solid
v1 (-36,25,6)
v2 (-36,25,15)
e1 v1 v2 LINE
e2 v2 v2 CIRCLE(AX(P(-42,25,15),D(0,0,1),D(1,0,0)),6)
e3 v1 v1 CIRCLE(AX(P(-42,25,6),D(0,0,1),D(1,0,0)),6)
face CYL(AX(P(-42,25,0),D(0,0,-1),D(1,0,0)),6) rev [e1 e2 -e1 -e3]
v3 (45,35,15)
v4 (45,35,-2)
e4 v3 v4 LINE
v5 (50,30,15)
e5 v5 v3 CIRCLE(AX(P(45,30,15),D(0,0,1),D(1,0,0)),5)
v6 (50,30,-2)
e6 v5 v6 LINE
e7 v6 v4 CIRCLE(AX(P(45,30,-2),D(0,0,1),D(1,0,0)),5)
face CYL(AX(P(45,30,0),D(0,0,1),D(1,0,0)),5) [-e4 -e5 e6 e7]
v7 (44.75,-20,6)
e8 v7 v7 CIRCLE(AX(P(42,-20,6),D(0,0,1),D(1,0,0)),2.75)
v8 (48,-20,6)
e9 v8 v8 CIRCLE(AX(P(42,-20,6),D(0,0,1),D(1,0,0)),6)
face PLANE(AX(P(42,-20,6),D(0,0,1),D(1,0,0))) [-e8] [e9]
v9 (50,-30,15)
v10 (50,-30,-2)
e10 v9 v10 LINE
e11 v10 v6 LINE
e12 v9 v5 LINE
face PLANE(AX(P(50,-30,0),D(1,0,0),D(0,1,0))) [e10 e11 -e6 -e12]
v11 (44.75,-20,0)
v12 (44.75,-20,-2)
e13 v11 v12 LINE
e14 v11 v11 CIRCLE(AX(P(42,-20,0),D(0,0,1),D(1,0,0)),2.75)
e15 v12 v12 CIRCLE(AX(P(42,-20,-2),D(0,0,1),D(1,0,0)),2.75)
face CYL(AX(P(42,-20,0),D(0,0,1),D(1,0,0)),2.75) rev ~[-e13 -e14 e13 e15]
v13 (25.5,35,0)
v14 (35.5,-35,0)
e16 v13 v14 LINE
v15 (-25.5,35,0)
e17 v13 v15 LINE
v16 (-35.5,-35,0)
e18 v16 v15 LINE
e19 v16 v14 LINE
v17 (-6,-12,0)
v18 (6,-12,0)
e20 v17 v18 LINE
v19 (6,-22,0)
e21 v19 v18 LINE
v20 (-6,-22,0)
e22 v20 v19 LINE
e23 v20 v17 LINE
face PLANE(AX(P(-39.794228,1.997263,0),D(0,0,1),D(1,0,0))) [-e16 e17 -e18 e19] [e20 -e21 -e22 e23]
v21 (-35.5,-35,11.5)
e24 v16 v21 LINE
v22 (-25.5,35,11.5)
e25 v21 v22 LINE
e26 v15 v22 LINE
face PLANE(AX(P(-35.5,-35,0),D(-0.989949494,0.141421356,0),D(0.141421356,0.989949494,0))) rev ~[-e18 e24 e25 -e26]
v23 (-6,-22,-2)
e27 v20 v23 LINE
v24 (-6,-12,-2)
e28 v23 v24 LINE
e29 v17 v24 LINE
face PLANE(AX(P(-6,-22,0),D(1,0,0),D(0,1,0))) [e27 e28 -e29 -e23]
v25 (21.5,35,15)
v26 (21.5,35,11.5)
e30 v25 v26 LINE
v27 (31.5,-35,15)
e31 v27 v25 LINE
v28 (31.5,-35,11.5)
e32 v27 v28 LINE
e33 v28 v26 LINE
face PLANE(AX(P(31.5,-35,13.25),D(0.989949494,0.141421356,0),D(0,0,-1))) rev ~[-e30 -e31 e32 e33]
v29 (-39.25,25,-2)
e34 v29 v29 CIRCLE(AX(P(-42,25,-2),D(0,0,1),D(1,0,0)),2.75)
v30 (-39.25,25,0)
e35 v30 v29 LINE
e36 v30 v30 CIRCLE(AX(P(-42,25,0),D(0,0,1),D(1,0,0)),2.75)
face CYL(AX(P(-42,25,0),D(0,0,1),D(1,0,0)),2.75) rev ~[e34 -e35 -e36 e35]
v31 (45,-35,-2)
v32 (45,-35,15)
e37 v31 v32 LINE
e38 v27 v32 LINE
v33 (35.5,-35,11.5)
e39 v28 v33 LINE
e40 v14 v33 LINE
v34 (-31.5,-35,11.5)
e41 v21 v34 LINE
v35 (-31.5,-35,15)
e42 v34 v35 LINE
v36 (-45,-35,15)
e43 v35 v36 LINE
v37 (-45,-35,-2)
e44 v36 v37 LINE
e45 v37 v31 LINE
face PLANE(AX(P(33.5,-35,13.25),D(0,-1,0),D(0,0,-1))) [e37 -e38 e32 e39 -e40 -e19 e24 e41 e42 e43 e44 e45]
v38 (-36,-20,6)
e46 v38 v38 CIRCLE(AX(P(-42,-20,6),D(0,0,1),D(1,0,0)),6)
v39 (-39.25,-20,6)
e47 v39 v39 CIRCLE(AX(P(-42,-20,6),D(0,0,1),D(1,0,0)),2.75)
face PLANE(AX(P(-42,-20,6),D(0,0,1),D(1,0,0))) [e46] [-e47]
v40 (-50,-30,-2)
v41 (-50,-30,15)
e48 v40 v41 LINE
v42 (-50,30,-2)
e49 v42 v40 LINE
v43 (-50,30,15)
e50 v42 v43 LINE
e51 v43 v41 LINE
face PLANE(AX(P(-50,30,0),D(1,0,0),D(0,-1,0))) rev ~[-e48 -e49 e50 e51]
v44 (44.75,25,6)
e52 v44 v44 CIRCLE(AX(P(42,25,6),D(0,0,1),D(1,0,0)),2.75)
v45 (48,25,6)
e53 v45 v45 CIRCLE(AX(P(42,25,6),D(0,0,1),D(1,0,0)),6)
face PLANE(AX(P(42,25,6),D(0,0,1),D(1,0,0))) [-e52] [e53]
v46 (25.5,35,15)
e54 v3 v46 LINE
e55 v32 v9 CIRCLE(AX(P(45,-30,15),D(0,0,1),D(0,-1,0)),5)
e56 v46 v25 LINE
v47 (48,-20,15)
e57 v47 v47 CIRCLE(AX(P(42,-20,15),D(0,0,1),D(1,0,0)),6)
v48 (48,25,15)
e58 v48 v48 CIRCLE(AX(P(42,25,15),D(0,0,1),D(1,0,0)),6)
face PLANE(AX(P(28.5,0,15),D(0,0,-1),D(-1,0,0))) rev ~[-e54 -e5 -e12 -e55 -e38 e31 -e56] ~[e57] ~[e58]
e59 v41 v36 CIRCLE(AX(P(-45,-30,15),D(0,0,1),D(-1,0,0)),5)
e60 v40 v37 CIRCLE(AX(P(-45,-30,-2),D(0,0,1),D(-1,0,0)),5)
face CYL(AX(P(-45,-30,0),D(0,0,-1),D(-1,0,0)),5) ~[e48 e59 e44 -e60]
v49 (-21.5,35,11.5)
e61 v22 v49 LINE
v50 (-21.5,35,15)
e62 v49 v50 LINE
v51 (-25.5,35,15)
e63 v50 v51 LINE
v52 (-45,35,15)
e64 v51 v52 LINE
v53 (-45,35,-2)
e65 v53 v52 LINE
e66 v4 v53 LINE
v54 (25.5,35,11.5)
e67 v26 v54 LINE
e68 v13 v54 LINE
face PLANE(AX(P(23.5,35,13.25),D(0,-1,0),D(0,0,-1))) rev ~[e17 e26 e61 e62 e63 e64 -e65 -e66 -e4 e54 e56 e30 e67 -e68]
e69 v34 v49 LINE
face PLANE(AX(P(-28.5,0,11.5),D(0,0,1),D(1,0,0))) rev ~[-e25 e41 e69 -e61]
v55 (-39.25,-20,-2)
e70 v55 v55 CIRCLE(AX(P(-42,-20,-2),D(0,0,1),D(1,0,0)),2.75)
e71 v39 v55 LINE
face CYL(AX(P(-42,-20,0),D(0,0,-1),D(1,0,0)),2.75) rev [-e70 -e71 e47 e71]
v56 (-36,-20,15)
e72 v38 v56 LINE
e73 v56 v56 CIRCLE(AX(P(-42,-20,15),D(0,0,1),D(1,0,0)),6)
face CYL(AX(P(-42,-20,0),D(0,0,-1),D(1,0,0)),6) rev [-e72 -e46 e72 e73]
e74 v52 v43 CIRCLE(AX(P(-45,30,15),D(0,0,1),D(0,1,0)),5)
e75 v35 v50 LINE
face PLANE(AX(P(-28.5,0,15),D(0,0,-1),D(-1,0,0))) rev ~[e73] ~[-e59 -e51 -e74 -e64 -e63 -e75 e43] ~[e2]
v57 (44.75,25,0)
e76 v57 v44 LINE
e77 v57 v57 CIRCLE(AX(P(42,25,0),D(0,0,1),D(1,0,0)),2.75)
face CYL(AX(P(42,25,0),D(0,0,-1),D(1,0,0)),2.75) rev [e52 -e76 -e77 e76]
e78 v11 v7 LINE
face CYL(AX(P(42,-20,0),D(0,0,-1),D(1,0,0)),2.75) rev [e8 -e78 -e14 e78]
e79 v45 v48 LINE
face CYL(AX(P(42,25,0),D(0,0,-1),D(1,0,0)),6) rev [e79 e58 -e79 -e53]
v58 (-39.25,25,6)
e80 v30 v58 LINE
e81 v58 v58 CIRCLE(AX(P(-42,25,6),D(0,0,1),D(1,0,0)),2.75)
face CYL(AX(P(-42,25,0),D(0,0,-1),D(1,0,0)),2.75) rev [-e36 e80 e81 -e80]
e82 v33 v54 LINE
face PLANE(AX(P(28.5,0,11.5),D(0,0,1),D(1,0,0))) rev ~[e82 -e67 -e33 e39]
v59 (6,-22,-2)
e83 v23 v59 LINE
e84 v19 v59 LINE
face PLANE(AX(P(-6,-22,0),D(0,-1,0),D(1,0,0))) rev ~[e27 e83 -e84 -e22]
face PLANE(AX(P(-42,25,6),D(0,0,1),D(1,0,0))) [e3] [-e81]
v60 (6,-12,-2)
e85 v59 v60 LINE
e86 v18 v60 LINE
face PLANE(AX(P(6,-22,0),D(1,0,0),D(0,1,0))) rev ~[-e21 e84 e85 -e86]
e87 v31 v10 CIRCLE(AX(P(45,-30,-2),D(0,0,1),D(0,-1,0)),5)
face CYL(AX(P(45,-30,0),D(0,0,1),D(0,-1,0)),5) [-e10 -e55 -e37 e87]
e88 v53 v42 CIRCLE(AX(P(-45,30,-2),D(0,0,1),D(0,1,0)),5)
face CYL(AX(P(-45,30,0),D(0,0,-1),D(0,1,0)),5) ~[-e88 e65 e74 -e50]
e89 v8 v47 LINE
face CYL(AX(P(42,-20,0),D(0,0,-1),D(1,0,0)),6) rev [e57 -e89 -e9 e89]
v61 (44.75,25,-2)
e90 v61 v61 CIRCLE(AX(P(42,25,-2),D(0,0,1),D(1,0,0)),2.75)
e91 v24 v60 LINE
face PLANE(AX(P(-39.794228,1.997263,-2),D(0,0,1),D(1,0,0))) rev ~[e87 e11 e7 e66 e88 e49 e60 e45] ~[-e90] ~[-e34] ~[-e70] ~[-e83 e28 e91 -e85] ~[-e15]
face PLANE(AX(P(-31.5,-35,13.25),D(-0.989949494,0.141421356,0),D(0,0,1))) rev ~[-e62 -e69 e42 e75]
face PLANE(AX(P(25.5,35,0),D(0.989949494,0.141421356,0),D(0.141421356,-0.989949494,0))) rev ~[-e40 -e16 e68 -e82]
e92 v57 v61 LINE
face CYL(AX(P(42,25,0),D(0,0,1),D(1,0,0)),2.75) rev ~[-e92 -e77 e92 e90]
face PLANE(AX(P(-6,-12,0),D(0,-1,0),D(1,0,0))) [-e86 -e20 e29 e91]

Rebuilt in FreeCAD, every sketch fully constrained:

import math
import FreeCAD as App
import Part
import Sketcher
from FreeCAD import Vector
Q = App.Units.Quantity

doc = App.newDocument("Part")
params = doc.addObject("Spreadsheet::Sheet", "Params")
for row, (alias, value) in enumerate([
    ("sketch1_radius", "5 mm"),
    ("sketch1_diameter", "5.5 mm"),
    ("sketch1_width", "90 mm"),
    ("sketch1_width2", "12 mm"),
    ("sketch1_height", "60 mm"),
    ("pad1_length", "2 mm"),
    ("sketch2_diameter", "12 mm"),
    ("sketch2_radius", "5 mm"),
    ("sketch2_height", "60 mm"),
    ("sketch2_width", "19.5 mm"),
    ("sketch2_width2", "9.5 mm"),
    ("pad2_length", "15 mm"),
    ("sketch3_width", "4 mm"),
    ("sketch3_height", "3.5 mm"),
    ("sketch5_width", "4 mm"),
    ("sketch5_height", "3.5 mm"),
    ("sketch7_diameter", "12 mm"),
    ("sketch7_diameter2", "5.5 mm"),
    ("pad3_length", "6 mm"),
], start=1):
    params.set(f"A{row}", alias)
    params.set(f"B{row}", "=" + value)
    params.setAlias(f"B{row}", alias)

body = doc.addObject("PartDesign::Body", "Body")

# Sketch on XY plane
sketch1 = doc.addObject("Sketcher::SketchObject", "Sketch")
body.addObject(sketch1)
sketch1.AttachmentSupport = (doc.XY_Plane, [""])
sketch1.MapMode = "FlatFace"
sketch1.addGeometry([
    Part.ArcOfCircle(Part.Circle(Vector(-45, 30, 0), Vector(0, 0, 1), 5), math.radians(90), math.radians(180)),  # 0
    Part.LineSegment(Vector(-50, 30, 0), Vector(-50, -30, 0)),  # 1
    Part.ArcOfCircle(Part.Circle(Vector(-45, -30, 0), Vector(0, 0, 1), 5), math.radians(180), math.radians(270)),  # 2
    Part.LineSegment(Vector(-45, -35, 0), Vector(45, -35, 0)),  # 3
    Part.ArcOfCircle(Part.Circle(Vector(45, -30, 0), Vector(0, 0, 1), 5), math.radians(-90), math.radians(0)),  # 4
    Part.LineSegment(Vector(50, -30, 0), Vector(50, 30, 0)),  # 5
    Part.ArcOfCircle(Part.Circle(Vector(45, 30, 0), Vector(0, 0, 1), 5), math.radians(0), math.radians(90)),  # 6
    Part.LineSegment(Vector(45, 35, 0), Vector(-45, 35, 0)),  # 7
    Part.Circle(Vector(-42, -20, 0), Vector(0, 0, 1), 2.8),  # 8
    Part.LineSegment(Vector(6, -22, 0), Vector(-6, -22, 0)),  # 9
    Part.LineSegment(Vector(-6, -22, 0), Vector(-6, -12, 0)),  # 10
    Part.LineSegment(Vector(-6, -12, 0), Vector(6, -12, 0)),  # 11
    Part.LineSegment(Vector(6, -12, 0), Vector(6, -22, 0)),  # 12
    Part.Circle(Vector(42, -20, 0), Vector(0, 0, 1), 2.8),  # 13
    Part.Circle(Vector(-42, 25, 0), Vector(0, 0, 1), 2.8),  # 14
    Part.Circle(Vector(42, 25, 0), Vector(0, 0, 1), 2.8),  # 15
], False)
sketch1.addConstraint([
    Sketcher.Constraint("Tangent", 0, 2, 1, 1),
    Sketcher.Constraint("Tangent", 1, 2, 2, 1),
    Sketcher.Constraint("Tangent", 2, 2, 3, 1),
    Sketcher.Constraint("Tangent", 3, 2, 4, 1),
    Sketcher.Constraint("Tangent", 4, 2, 5, 1),
    Sketcher.Constraint("Tangent", 5, 2, 6, 1),
    Sketcher.Constraint("Tangent", 6, 2, 7, 1),
    Sketcher.Constraint("Tangent", 7, 2, 0, 1),
    Sketcher.Constraint("Coincident", 9, 2, 10, 1),
    Sketcher.Constraint("Coincident", 10, 2, 11, 1),
    Sketcher.Constraint("Coincident", 11, 2, 12, 1),
    Sketcher.Constraint("Coincident", 12, 2, 9, 1),
    Sketcher.Constraint("Vertical", 1),
    Sketcher.Constraint("Horizontal", 3),
    Sketcher.Constraint("Vertical", 5),
    Sketcher.Constraint("Horizontal", 7),
    Sketcher.Constraint("Horizontal", 9),
    Sketcher.Constraint("Vertical", 10),
    Sketcher.Constraint("Horizontal", 11),
    Sketcher.Constraint("Vertical", 12),
    Sketcher.Constraint("Equal", 0, 2),
    Sketcher.Constraint("Equal", 2, 4),
    Sketcher.Constraint("Equal", 4, 6),
    Sketcher.Constraint("Equal", 8, 13),
    Sketcher.Constraint("Equal", 13, 14),
    Sketcher.Constraint("Equal", 14, 15),
    Sketcher.Constraint("Symmetric", 0, 3, 4, 3, -1, 1),
    Sketcher.Constraint("Symmetric", 8, 3, 13, 3, -2),
    Sketcher.Constraint("Symmetric", 14, 3, 15, 3, -2),
    Sketcher.Constraint("Vertical", 8, 3, 14, 3),
    Sketcher.Constraint("Radius", 0, Q("5 mm")),
    Sketcher.Constraint("Diameter", 8, Q("5.5 mm")),
    Sketcher.Constraint("DistanceX", 3, 1, 3, 2, Q("90 mm")),
    Sketcher.Constraint("DistanceX", 9, 2, 9, 1, Q("12 mm")),
    Sketcher.Constraint("DistanceY", 1, 2, 1, 1, Q("60 mm")),
    Sketcher.Constraint("DistanceY", 10, 1, 10, 2, Q("10 mm")),
    Sketcher.Constraint("DistanceX", 8, 3, -1, 1, Q("42 mm")),
    Sketcher.Constraint("DistanceY", 8, 3, -1, 1, Q("20 mm")),
    Sketcher.Constraint("DistanceY", -1, 1, 14, 3, Q("25 mm")),
    Sketcher.Constraint("DistanceX", 9, 2, -1, 1, Q("6 mm")),
    Sketcher.Constraint("DistanceY", 9, 2, -1, 1, Q("22 mm")),
])
sketch1.setExpression("Constraints[30]", "Params.sketch1_radius")
sketch1.setExpression("Constraints[31]", "Params.sketch1_diameter")
sketch1.setExpression("Constraints[32]", "Params.sketch1_width")
sketch1.setExpression("Constraints[33]", "Params.sketch1_width2")
sketch1.setExpression("Constraints[34]", "Params.sketch1_height")
pad1 = doc.addObject("PartDesign::Pad", "Pad")
body.addObject(pad1)
pad1.Profile = sketch1
pad1.setExpression("Length", "Params.pad1_length")
pad1.Reversed = True

# Sketch on XY plane
sketch2 = doc.addObject("Sketcher::SketchObject", "Sketch001")
body.addObject(sketch2)
sketch2.AttachmentSupport = (doc.XY_Plane, [""])
sketch2.MapMode = "FlatFace"
sketch2.addGeometry([
    Part.LineSegment(Vector(-26, 35, 0), Vector(-45, 35, 0)),  # 0
    Part.ArcOfCircle(Part.Circle(Vector(-45, 30, 0), Vector(0, 0, 1), 5), math.radians(90), math.radians(180)),  # 1
    Part.LineSegment(Vector(-50, 30, 0), Vector(-50, -30, 0)),  # 2
    Part.ArcOfCircle(Part.Circle(Vector(-45, -30, 0), Vector(0, 0, 1), 5), math.radians(180), math.radians(270)),  # 3
    Part.LineSegment(Vector(-45, -35, 0), Vector(-36, -35, 0)),  # 4
    Part.LineSegment(Vector(-36, -35, 0), Vector(-26, 35, 0)),  # 5
    Part.Circle(Vector(-42, -20, 0), Vector(0, 0, 1), 6),  # 6
    Part.Circle(Vector(-42, 25, 0), Vector(0, 0, 1), 6),  # 7
    Part.LineSegment(Vector(45, 35, 0), Vector(26, 35, 0)),  # 8
    Part.LineSegment(Vector(26, 35, 0), Vector(36, -35, 0)),  # 9
    Part.LineSegment(Vector(36, -35, 0), Vector(45, -35, 0)),  # 10
    Part.ArcOfCircle(Part.Circle(Vector(45, -30, 0), Vector(0, 0, 1), 5), math.radians(-90), math.radians(0)),  # 11
    Part.LineSegment(Vector(50, -30, 0), Vector(50, 30, 0)),  # 12
    Part.ArcOfCircle(Part.Circle(Vector(45, 30, 0), Vector(0, 0, 1), 5), math.radians(0), math.radians(90)),  # 13
    Part.Circle(Vector(42, -20, 0), Vector(0, 0, 1), 6),  # 14
    Part.Circle(Vector(42, 25, 0), Vector(0, 0, 1), 6),  # 15
], False)
sketch2.addConstraint([
    Sketcher.Constraint("Tangent", 0, 2, 1, 1),
    Sketcher.Constraint("Tangent", 1, 2, 2, 1),
    Sketcher.Constraint("Tangent", 2, 2, 3, 1),
    Sketcher.Constraint("Tangent", 3, 2, 4, 1),
    Sketcher.Constraint("Coincident", 4, 2, 5, 1),
    Sketcher.Constraint("Coincident", 5, 2, 0, 1),
    Sketcher.Constraint("Coincident", 8, 2, 9, 1),
    Sketcher.Constraint("Coincident", 9, 2, 10, 1),
    Sketcher.Constraint("Tangent", 10, 2, 11, 1),
    Sketcher.Constraint("Tangent", 11, 2, 12, 1),
    Sketcher.Constraint("Tangent", 12, 2, 13, 1),
    Sketcher.Constraint("Tangent", 13, 2, 8, 1),
    Sketcher.Constraint("Horizontal", 0),
    Sketcher.Constraint("Vertical", 2),
    Sketcher.Constraint("Horizontal", 4),
    Sketcher.Constraint("Horizontal", 8),
    Sketcher.Constraint("Horizontal", 10),
    Sketcher.Constraint("Vertical", 12),
    Sketcher.Constraint("Equal", 1, 3),
    Sketcher.Constraint("Equal", 6, 7),
    Sketcher.Constraint("Equal", 3, 11),
    Sketcher.Constraint("Equal", 11, 13),
    Sketcher.Constraint("Equal", 7, 14),
    Sketcher.Constraint("Equal", 14, 15),
    Sketcher.Constraint("Symmetric", 1, 3, 11, 3, -1, 1),
    Sketcher.Constraint("Symmetric", 6, 3, 14, 3, -2),
    Sketcher.Constraint("Symmetric", 7, 3, 15, 3, -2),
    Sketcher.Constraint("Symmetric", 5, 2, 8, 2, -2),
    Sketcher.Constraint("Symmetric", 4, 2, 9, 2, -2),
    Sketcher.Constraint("Vertical", 6, 3, 7, 3),
    Sketcher.Constraint("Diameter", 6, Q("12 mm")),
    Sketcher.Constraint("Radius", 1, Q("5 mm")),
    Sketcher.Constraint("DistanceY", 2, 2, 2, 1, Q("60 mm")),
    Sketcher.Constraint("DistanceX", 0, 2, 0, 1, Q("19.5 mm")),
    Sketcher.Constraint("DistanceX", 4, 1, 4, 2, Q("9.5 mm")),
    Sketcher.Constraint("DistanceX", 1, 3, -1, 1, Q("45 mm")),
    Sketcher.Constraint("DistanceX", 6, 3, -1, 1, Q("42 mm")),
    Sketcher.Constraint("DistanceY", 6, 3, -1, 1, Q("20 mm")),
    Sketcher.Constraint("DistanceY", -1, 1, 7, 3, Q("25 mm")),
])
sketch2.setExpression("Constraints[30]", "Params.sketch2_diameter")
sketch2.setExpression("Constraints[31]", "Params.sketch2_radius")
sketch2.setExpression("Constraints[32]", "Params.sketch2_height")
sketch2.setExpression("Constraints[33]", "Params.sketch2_width")
sketch2.setExpression("Constraints[34]", "Params.sketch2_width2")
pad2 = doc.addObject("PartDesign::Pad", "Pad001")
body.addObject(pad2)
pad2.Profile = sketch2
pad2.setExpression("Length", "Params.pad2_length")

# Sketch on XZ plane
sketch3 = doc.addObject("Sketcher::SketchObject", "Sketch002")
body.addObject(sketch3)
sketch3.AttachmentSupport = (doc.XZ_Plane, [""])
sketch3.MapMode = "FlatFace"
sketch3.AttachmentOffset = App.Placement(Vector(0, 0, 35), App.Rotation())
sketch3.addGeometry([
    Part.LineSegment(Vector(-35.5, 15, 0), Vector(-35.5, 11.5, 0)),
    Part.LineSegment(Vector(-35.5, 11.5, 0), Vector(-31.5, 11.5, 0)),
    Part.LineSegment(Vector(-31.5, 11.5, 0), Vector(-31.5, 15, 0)),
    Part.LineSegment(Vector(-31.5, 15, 0), Vector(-35.5, 15, 0)),
], False)
sketch3.addConstraint([
    Sketcher.Constraint("Coincident", 0, 2, 1, 1),
    Sketcher.Constraint("Coincident", 1, 2, 2, 1),
    Sketcher.Constraint("Coincident", 2, 2, 3, 1),
    Sketcher.Constraint("Coincident", 3, 2, 0, 1),
    Sketcher.Constraint("Vertical", 0),
    Sketcher.Constraint("Horizontal", 1),
    Sketcher.Constraint("Vertical", 2),
    Sketcher.Constraint("Horizontal", 3),
    Sketcher.Constraint("DistanceX", 1, 1, 1, 2, Q("4 mm")),
    Sketcher.Constraint("DistanceY", 0, 2, 0, 1, Q("3.5 mm")),
    Sketcher.Constraint("DistanceY", -1, 1, 2, 2, Q("15 mm")),
    Sketcher.Constraint("DistanceX", 0, 2, -1, 1, Q("35.5 mm")),
])
sketch3.setExpression("Constraints[8]", "Params.sketch3_width")
sketch3.setExpression("Constraints[9]", "Params.sketch3_height")

# Sketch on an angled plane
sketch4 = doc.addObject("Sketcher::SketchObject", "Sketch003")
body.addObject(sketch4)
sketch4.Placement = App.Placement(Vector(-29.89, 4.27, 0), App.Rotation(Vector(0.141421356, 0.989949494, 0), Vector(0, 0, 1.000000001), Vector(0.989949494, -0.141421356, 0), "ZXY"))
sketch4.addGeometry(Part.LineSegment(Vector(-40, 15, 0), Vector(31, 15, 0)), False)
sketch4.addConstraint([
    Sketcher.Constraint("Horizontal", 0),
    Sketcher.Constraint("DistanceY", -1, 1, 0, 1, Q("15 mm")),
    Sketcher.Constraint("DistanceX", 0, 1, 0, 2, Q("70.710678 mm")),
    Sketcher.Constraint("DistanceX", 0, 1, -1, 1, Q("39.66869 mm")),
])
doc.recompute()

additivepipe = doc.addObject("PartDesign::AdditivePipe", "AdditivePipe")
body.addObject(additivepipe)
additivepipe.Profile = sketch3
additivepipe.Spine = (sketch4, ["Edge1"])

# Sketch on XZ plane
sketch5 = doc.addObject("Sketcher::SketchObject", "Sketch004")
body.addObject(sketch5)
sketch5.AttachmentSupport = (doc.XZ_Plane, [""])
sketch5.MapMode = "FlatFace"
sketch5.AttachmentOffset = App.Placement(Vector(0, 0, 35), App.Rotation())
sketch5.addGeometry([
    Part.LineSegment(Vector(31.5, 15, 0), Vector(31.5, 11.5, 0)),
    Part.LineSegment(Vector(31.5, 11.5, 0), Vector(35.5, 11.5, 0)),
    Part.LineSegment(Vector(35.5, 11.5, 0), Vector(35.5, 15, 0)),
    Part.LineSegment(Vector(35.5, 15, 0), Vector(31.5, 15, 0)),
], False)
sketch5.addConstraint([
    Sketcher.Constraint("Coincident", 0, 2, 1, 1),
    Sketcher.Constraint("Coincident", 1, 2, 2, 1),
    Sketcher.Constraint("Coincident", 2, 2, 3, 1),
    Sketcher.Constraint("Coincident", 3, 2, 0, 1),
    Sketcher.Constraint("Vertical", 0),
    Sketcher.Constraint("Horizontal", 1),
    Sketcher.Constraint("Vertical", 2),
    Sketcher.Constraint("Horizontal", 3),
    Sketcher.Constraint("DistanceX", 1, 1, 1, 2, Q("4 mm")),
    Sketcher.Constraint("DistanceY", 0, 2, 0, 1, Q("3.5 mm")),
    Sketcher.Constraint("DistanceY", -1, 1, 2, 2, Q("15 mm")),
    Sketcher.Constraint("DistanceX", -1, 1, 0, 2, Q("31.5 mm")),
])
sketch5.setExpression("Constraints[8]", "Params.sketch5_width")
sketch5.setExpression("Constraints[9]", "Params.sketch5_height")

# Sketch on an angled plane
sketch6 = doc.addObject("Sketcher::SketchObject", "Sketch005")
body.addObject(sketch6)
sketch6.Placement = App.Placement(Vector(29.89, 4.27, 0), App.Rotation(Vector(-0.141421356, 0.989949494, 0), Vector(0, 0, 1.000000001), Vector(0.989949494, 0.141421356, 0), "ZXY"))
sketch6.addGeometry(Part.LineSegment(Vector(-40, 15, 0), Vector(31, 15, 0)), False)
sketch6.addConstraint([
    Sketcher.Constraint("Horizontal", 0),
    Sketcher.Constraint("DistanceY", -1, 1, 0, 1, Q("15 mm")),
    Sketcher.Constraint("DistanceX", 0, 1, 0, 2, Q("70.710678 mm")),
    Sketcher.Constraint("DistanceX", 0, 1, -1, 1, Q("39.66869 mm")),
])
doc.recompute()

additivepipe2 = doc.addObject("PartDesign::AdditivePipe", "AdditivePipe001")
body.addObject(additivepipe2)
additivepipe2.Profile = sketch5
additivepipe2.Spine = (sketch6, ["Edge1"])

# Sketch on XY plane
sketch7 = doc.addObject("Sketcher::SketchObject", "Sketch006")
body.addObject(sketch7)
sketch7.AttachmentSupport = (doc.XY_Plane, [""])
sketch7.MapMode = "FlatFace"
sketch7.addGeometry([
    Part.Circle(Vector(-42, -20, 0), Vector(0, 0, 1), 6),  # 0
    Part.Circle(Vector(-42, -20, 0), Vector(0, 0, 1), 2.8),  # 1
    Part.Circle(Vector(-42, 25, 0), Vector(0, 0, 1), 6),  # 2
    Part.Circle(Vector(-42, 25, 0), Vector(0, 0, 1), 2.8),  # 3
    Part.Circle(Vector(42, 25, 0), Vector(0, 0, 1), 6),  # 4
    Part.Circle(Vector(42, 25, 0), Vector(0, 0, 1), 2.8),  # 5
    Part.Circle(Vector(42, -20, 0), Vector(0, 0, 1), 6),  # 6
    Part.Circle(Vector(42, -20, 0), Vector(0, 0, 1), 2.8),  # 7
], False)
sketch7.addConstraint([
    Sketcher.Constraint("Coincident", 1, 3, 0, 3),
    Sketcher.Constraint("Coincident", 3, 3, 2, 3),
    Sketcher.Constraint("Coincident", 5, 3, 4, 3),
    Sketcher.Constraint("Coincident", 7, 3, 6, 3),
    Sketcher.Constraint("Equal", 0, 2),
    Sketcher.Constraint("Equal", 1, 3),
    Sketcher.Constraint("Equal", 2, 4),
    Sketcher.Constraint("Equal", 3, 5),
    Sketcher.Constraint("Equal", 4, 6),
    Sketcher.Constraint("Equal", 5, 7),
    Sketcher.Constraint("Symmetric", 2, 3, 4, 3, -2),
    Sketcher.Constraint("Symmetric", 0, 3, 6, 3, -2),
    Sketcher.Constraint("Vertical", 1, 3, 2, 3),
    Sketcher.Constraint("Diameter", 0, Q("12 mm")),
    Sketcher.Constraint("Diameter", 1, Q("5.5 mm")),
    Sketcher.Constraint("DistanceX", 0, 3, -1, 1, Q("42 mm")),
    Sketcher.Constraint("DistanceY", 0, 3, -1, 1, Q("20 mm")),
    Sketcher.Constraint("DistanceY", -1, 1, 2, 3, Q("25 mm")),
])
sketch7.setExpression("Constraints[13]", "Params.sketch7_diameter")
sketch7.setExpression("Constraints[14]", "Params.sketch7_diameter2")
pad3 = doc.addObject("PartDesign::Pad", "Pad002")
body.addObject(pad3)
pad3.Profile = sketch7
pad3.setExpression("Length", "Params.pad3_length")

doc.recompute()
